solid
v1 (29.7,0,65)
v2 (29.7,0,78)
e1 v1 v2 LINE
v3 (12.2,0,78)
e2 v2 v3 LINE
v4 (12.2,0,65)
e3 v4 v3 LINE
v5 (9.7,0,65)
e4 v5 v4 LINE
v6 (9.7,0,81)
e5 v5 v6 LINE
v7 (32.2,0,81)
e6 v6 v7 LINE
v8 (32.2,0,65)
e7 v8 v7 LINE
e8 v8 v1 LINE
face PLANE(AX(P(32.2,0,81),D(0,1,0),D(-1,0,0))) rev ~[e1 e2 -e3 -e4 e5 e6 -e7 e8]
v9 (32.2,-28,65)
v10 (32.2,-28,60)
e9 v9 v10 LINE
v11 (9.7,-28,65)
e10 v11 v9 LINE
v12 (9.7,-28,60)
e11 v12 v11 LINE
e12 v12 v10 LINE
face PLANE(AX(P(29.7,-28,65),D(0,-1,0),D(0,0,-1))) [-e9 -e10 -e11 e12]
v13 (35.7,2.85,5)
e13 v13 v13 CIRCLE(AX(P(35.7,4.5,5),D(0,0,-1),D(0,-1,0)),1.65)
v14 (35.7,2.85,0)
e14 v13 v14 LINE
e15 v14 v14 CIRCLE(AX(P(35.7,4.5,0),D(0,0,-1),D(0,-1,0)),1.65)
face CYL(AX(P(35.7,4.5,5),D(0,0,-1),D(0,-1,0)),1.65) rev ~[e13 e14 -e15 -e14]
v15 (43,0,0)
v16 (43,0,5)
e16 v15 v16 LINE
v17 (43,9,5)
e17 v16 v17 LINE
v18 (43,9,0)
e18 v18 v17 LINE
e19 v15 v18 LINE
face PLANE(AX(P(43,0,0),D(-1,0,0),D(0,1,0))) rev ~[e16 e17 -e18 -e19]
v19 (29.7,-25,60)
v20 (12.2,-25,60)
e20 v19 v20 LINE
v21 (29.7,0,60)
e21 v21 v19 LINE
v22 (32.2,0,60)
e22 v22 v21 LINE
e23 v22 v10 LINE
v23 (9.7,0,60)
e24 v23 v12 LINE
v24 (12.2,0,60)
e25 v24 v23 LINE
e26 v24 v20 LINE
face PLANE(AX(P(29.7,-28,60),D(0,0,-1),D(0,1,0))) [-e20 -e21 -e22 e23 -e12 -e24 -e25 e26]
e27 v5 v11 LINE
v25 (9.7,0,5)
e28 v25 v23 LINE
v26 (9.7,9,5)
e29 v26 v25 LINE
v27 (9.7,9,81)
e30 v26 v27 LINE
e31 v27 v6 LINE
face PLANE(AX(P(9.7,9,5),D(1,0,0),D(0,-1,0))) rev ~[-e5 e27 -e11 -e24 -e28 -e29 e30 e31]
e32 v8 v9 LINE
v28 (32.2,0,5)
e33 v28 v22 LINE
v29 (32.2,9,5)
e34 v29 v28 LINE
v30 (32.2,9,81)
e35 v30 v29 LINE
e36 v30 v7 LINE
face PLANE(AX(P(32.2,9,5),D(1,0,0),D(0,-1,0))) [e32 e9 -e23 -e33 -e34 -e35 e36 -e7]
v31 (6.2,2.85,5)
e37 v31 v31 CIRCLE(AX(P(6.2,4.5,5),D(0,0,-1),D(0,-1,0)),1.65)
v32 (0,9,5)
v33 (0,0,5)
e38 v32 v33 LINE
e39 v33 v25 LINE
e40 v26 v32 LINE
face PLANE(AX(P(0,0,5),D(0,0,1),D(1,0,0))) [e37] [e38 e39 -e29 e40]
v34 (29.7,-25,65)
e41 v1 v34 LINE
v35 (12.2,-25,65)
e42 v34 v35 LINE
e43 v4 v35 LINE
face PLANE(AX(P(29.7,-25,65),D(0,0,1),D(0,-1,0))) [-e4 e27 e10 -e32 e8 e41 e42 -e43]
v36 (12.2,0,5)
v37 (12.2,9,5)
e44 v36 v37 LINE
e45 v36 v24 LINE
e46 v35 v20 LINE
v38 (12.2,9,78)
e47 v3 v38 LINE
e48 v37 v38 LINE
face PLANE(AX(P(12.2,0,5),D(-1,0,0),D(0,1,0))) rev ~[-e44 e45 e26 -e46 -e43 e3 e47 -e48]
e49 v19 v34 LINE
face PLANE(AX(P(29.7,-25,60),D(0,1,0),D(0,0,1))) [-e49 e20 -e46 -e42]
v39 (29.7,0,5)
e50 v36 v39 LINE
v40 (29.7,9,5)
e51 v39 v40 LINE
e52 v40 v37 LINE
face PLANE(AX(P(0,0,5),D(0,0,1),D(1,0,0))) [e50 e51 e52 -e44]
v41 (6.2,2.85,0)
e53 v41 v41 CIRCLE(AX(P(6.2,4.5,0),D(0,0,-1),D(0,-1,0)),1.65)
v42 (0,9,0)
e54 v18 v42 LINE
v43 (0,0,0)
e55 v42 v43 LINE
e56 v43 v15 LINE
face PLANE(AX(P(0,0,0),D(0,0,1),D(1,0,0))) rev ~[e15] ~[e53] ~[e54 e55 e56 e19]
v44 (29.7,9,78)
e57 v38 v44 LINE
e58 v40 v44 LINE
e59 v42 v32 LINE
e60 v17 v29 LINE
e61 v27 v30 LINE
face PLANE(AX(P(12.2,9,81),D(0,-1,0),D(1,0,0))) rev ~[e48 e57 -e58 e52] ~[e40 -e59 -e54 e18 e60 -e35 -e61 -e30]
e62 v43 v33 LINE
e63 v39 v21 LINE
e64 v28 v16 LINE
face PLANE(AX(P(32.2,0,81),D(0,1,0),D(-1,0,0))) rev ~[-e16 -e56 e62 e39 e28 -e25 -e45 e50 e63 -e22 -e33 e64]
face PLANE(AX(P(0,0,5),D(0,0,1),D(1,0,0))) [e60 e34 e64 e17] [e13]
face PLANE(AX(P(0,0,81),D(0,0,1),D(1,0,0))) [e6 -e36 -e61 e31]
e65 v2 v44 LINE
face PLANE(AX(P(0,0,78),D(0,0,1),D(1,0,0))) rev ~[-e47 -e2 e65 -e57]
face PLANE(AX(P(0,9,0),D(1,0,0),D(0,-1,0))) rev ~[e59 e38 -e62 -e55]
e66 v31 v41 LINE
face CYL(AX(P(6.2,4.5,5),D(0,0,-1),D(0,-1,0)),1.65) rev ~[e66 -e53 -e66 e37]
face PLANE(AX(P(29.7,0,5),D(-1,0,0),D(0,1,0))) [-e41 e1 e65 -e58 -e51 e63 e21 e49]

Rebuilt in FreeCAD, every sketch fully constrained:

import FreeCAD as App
import Part
import Sketcher

V = App.Vector


def add_polygon(sketch, points):
    """Adds a closed chain of lines whose ends are joined by coincident constraints."""
    first, n = sketch.GeometryCount, len(points)
    for a, b in zip(points, points[1:] + points[:1]):
        sketch.addGeometry(Part.LineSegment(App.Vector(*a, 0), App.Vector(*b, 0)), False)
    for i in range(n):
        sketch.addConstraint(Sketcher.Constraint("Coincident", first + i, 2, first + (i + 1) % n, 1))

doc = App.newDocument("Part")
body = doc.addObject("PartDesign::Body", "Body")

# Sketch on XY plane
sketch1 = doc.addObject("Sketcher::SketchObject", "Sketch")
body.addObject(sketch1)
sketch1.AttachmentSupport = (doc.XY_Plane, [""])
sketch1.MapMode = "FlatFace"
add_polygon(sketch1, [(0, 9), (0, 0), (43, 0), (43, 9)])  # lines 0-3
sketch1.addConstraint(Sketcher.Constraint("Vertical", 0))
sketch1.addConstraint(Sketcher.Constraint("Horizontal", 1))
sketch1.addConstraint(Sketcher.Constraint("Vertical", 2))
sketch1.addConstraint(Sketcher.Constraint("Horizontal", 3))
sketch1.addConstraint(Sketcher.Constraint("Coincident", 0, 2, -1, 1))
sketch1.addConstraint(Sketcher.Constraint("DistanceX", 1, 1, 1, 2, 43.0))
sketch1.addConstraint(Sketcher.Constraint("DistanceY", 0, 2, 0, 1, 9.0))
pad1 = doc.addObject("PartDesign::Pad", "Pad")
body.addObject(pad1)
pad1.Profile = sketch1
pad1.Length = 5

# Sketch on XY plane
sketch2 = doc.addObject("Sketcher::SketchObject", "Sketch001")
body.addObject(sketch2)
sketch2.AttachmentSupport = (doc.XY_Plane, [""])
sketch2.MapMode = "FlatFace"
sketch2.AttachmentOffset = App.Placement(V(0, 0, 5), App.Rotation())
sketch2.addGeometry(Part.Circle(V(35.7, 4.5, 0), V(0, 0, 1), 1.6), False)
sketch2.addGeometry(Part.Circle(V(6.2, 4.5, 0), V(0, 0, 1), 1.6), False)
sketch2.addConstraint(Sketcher.Constraint("Equal", 0, 1))
sketch2.addConstraint(Sketcher.Constraint("Horizontal", 0, 3, 1, 3))
sketch2.addConstraint(Sketcher.Constraint("Diameter", 0, 3.3))
sketch2.addConstraint(Sketcher.Constraint("DistanceX", -1, 1, 0, 3, 35.7))
sketch2.addConstraint(Sketcher.Constraint("DistanceY", -1, 1, 0, 3, 4.5))
sketch2.addConstraint(Sketcher.Constraint("DistanceX", -1, 1, 1, 3, 6.2))
doc.recompute()
hole = doc.addObject("PartDesign::Hole", "Hole")
body.addObject(hole)
hole.Profile = sketch2
hole.ThreadType = "None"
hole.Diameter = 3.3
hole.DepthType = "ThroughAll"

# Sketch on XY plane
sketch3 = doc.addObject("Sketcher::SketchObject", "Sketch002")
body.addObject(sketch3)
sketch3.AttachmentSupport = (doc.XY_Plane, [""])
sketch3.MapMode = "FlatFace"
sketch3.AttachmentOffset = App.Placement(V(0, 0, 5), App.Rotation())
add_polygon(sketch3, [(9.7, 9), (9.7, 0), (12.2, 0), (12.2, 9)])  # lines 0-3
add_polygon(sketch3, [(29.7, 9), (29.7, 0), (32.2, 0), (32.2, 9)])  # lines 4-7
sketch3.addConstraint(Sketcher.Constraint("Vertical", 0))
sketch3.addConstraint(Sketcher.Constraint("Horizontal", 1))
sketch3.addConstraint(Sketcher.Constraint("Vertical", 2))
sketch3.addConstraint(Sketcher.Constraint("Horizontal", 3))
sketch3.addConstraint(Sketcher.Constraint("Vertical", 4))
sketch3.addConstraint(Sketcher.Constraint("Horizontal", 5))
sketch3.addConstraint(Sketcher.Constraint("Vertical", 6))
sketch3.addConstraint(Sketcher.Constraint("Horizontal", 7))
sketch3.addConstraint(Sketcher.Constraint("PointOnObject", 0, 2, -1))
sketch3.addConstraint(Sketcher.Constraint("PointOnObject", 4, 2, -1))
sketch3.addConstraint(Sketcher.Constraint("Horizontal", 3, 2, 6, 2))
sketch3.addConstraint(Sketcher.Constraint("Equal", 3, 5))
sketch3.addConstraint(Sketcher.Constraint("DistanceX", 1, 1, 1, 2, 2.5))
sketch3.addConstraint(Sketcher.Constraint("DistanceX", 1, 2, 4, 2, 17.5))
sketch3.addConstraint(Sketcher.Constraint("DistanceY", 0, 2, 0, 1, 9.0))
sketch3.addConstraint(Sketcher.Constraint("DistanceX", -1, 1, 0, 2, 9.7))
pad2 = doc.addObject("PartDesign::Pad", "Pad001")
body.addObject(pad2)
pad2.Profile = sketch3
pad2.Length = 76

# Sketch on XY plane
sketch4 = doc.addObject("Sketcher::SketchObject", "Sketch003")
body.addObject(sketch4)
sketch4.AttachmentSupport = (doc.XY_Plane, [""])
sketch4.MapMode = "FlatFace"
sketch4.AttachmentOffset = App.Placement(V(0, 0, 81), App.Rotation())
add_polygon(sketch4, [(32, 9), (10, 9), (10, 0), (32, 0)])  # lines 0-3
sketch4.addConstraint(Sketcher.Constraint("Horizontal", 0))
sketch4.addConstraint(Sketcher.Constraint("Vertical", 1))
sketch4.addConstraint(Sketcher.Constraint("Horizontal", 2))
sketch4.addConstraint(Sketcher.Constraint("Vertical", 3))
sketch4.addConstraint(Sketcher.Constraint("PointOnObject", 1, 2, -1))
sketch4.addConstraint(Sketcher.Constraint("DistanceY", 1, 2, 1, 1, 9.0))
sketch4.addConstraint(Sketcher.Constraint("DistanceX", 0, 2, 0, 1, 22.5))
sketch4.addConstraint(Sketcher.Constraint("DistanceX", -1, 1, 0, 2, 9.7))
pad3 = doc.addObject("PartDesign::Pad", "Pad002")
body.addObject(pad3)
pad3.Profile = sketch4
pad3.Length = 3
pad3.Reversed = True

# Sketch on XZ plane
sketch5 = doc.addObject("Sketcher::SketchObject", "Sketch004")
body.addObject(sketch5)
sketch5.AttachmentSupport = (doc.XZ_Plane, [""])
sketch5.MapMode = "FlatFace"
add_polygon(sketch5, [(9.7, 65), (9.7, 60), (12.2, 60), (12.2, 65)])  # lines 0-3
add_polygon(sketch5, [(32.2, 60), (32.2, 65), (29.7, 65), (29.7, 60)])  # lines 4-7
sketch5.addConstraint(Sketcher.Constraint("Vertical", 0))
sketch5.addConstraint(Sketcher.Constraint("Horizontal", 1))
sketch5.addConstraint(Sketcher.Constraint("Vertical", 2))
sketch5.addConstraint(Sketcher.Constraint("Horizontal", 3))
sketch5.addConstraint(Sketcher.Constraint("Vertical", 4))
sketch5.addConstraint(Sketcher.Constraint("Horizontal", 5))
sketch5.addConstraint(Sketcher.Constraint("Vertical", 6))
sketch5.addConstraint(Sketcher.Constraint("Horizontal", 7))
sketch5.addConstraint(Sketcher.Constraint("Horizontal", 3, 2, 4, 2))
sketch5.addConstraint(Sketcher.Constraint("Horizontal", 1, 2, 6, 2))
sketch5.addConstraint(Sketcher.Constraint("Equal", 3, 5))
sketch5.addConstraint(Sketcher.Constraint("DistanceY", 0, 2, 0, 1, 5.0))
sketch5.addConstraint(Sketcher.Constraint("DistanceX", 1, 1, 1, 2, 2.5))
sketch5.addConstraint(Sketcher.Constraint("DistanceY", -1, 1, 0, 2, 60.0))
sketch5.addConstraint(Sketcher.Constraint("DistanceX", 2, 2, 4, 2, 20.0))
sketch5.addConstraint(Sketcher.Constraint("DistanceX", -1, 1, 0, 2, 9.7))
pad4 = doc.addObject("PartDesign::Pad", "Pad003")
body.addObject(pad4)
pad4.Profile = sketch5
pad4.Length = 28

# Sketch on YZ plane
sketch6 = doc.addObject("Sketcher::SketchObject", "Sketch005")
body.addObject(sketch6)
sketch6.AttachmentSupport = (doc.YZ_Plane, [""])
sketch6.MapMode = "FlatFace"
sketch6.AttachmentOffset = App.Placement(V(0, 0, 29.7), App.Rotation())
add_polygon(sketch6, [(-28, 65), (-25, 65), (-25, 60), (-28, 60)])  # lines 0-3
sketch6.addConstraint(Sketcher.Constraint("Horizontal", 0))
sketch6.addConstraint(Sketcher.Constraint("Vertical", 1))
sketch6.addConstraint(Sketcher.Constraint("Horizontal", 2))
sketch6.addConstraint(Sketcher.Constraint("Vertical", 3))
sketch6.addConstraint(Sketcher.Constraint("DistanceX", 0, 1, 0, 2, 3.0))
sketch6.addConstraint(Sketcher.Constraint("DistanceY", 1, 2, 1, 1, 5.0))
sketch6.addConstraint(Sketcher.Constraint("DistanceX", 0, 2, -1, 1, 25.0))
sketch6.addConstraint(Sketcher.Constraint("DistanceY", -1, 1, 0, 2, 65.0))
pad5 = doc.addObject("PartDesign::Pad", "Pad004")
body.addObject(pad5)
pad5.Profile = sketch6
pad5.Length = 18
pad5.Reversed = True

doc.recompute()
